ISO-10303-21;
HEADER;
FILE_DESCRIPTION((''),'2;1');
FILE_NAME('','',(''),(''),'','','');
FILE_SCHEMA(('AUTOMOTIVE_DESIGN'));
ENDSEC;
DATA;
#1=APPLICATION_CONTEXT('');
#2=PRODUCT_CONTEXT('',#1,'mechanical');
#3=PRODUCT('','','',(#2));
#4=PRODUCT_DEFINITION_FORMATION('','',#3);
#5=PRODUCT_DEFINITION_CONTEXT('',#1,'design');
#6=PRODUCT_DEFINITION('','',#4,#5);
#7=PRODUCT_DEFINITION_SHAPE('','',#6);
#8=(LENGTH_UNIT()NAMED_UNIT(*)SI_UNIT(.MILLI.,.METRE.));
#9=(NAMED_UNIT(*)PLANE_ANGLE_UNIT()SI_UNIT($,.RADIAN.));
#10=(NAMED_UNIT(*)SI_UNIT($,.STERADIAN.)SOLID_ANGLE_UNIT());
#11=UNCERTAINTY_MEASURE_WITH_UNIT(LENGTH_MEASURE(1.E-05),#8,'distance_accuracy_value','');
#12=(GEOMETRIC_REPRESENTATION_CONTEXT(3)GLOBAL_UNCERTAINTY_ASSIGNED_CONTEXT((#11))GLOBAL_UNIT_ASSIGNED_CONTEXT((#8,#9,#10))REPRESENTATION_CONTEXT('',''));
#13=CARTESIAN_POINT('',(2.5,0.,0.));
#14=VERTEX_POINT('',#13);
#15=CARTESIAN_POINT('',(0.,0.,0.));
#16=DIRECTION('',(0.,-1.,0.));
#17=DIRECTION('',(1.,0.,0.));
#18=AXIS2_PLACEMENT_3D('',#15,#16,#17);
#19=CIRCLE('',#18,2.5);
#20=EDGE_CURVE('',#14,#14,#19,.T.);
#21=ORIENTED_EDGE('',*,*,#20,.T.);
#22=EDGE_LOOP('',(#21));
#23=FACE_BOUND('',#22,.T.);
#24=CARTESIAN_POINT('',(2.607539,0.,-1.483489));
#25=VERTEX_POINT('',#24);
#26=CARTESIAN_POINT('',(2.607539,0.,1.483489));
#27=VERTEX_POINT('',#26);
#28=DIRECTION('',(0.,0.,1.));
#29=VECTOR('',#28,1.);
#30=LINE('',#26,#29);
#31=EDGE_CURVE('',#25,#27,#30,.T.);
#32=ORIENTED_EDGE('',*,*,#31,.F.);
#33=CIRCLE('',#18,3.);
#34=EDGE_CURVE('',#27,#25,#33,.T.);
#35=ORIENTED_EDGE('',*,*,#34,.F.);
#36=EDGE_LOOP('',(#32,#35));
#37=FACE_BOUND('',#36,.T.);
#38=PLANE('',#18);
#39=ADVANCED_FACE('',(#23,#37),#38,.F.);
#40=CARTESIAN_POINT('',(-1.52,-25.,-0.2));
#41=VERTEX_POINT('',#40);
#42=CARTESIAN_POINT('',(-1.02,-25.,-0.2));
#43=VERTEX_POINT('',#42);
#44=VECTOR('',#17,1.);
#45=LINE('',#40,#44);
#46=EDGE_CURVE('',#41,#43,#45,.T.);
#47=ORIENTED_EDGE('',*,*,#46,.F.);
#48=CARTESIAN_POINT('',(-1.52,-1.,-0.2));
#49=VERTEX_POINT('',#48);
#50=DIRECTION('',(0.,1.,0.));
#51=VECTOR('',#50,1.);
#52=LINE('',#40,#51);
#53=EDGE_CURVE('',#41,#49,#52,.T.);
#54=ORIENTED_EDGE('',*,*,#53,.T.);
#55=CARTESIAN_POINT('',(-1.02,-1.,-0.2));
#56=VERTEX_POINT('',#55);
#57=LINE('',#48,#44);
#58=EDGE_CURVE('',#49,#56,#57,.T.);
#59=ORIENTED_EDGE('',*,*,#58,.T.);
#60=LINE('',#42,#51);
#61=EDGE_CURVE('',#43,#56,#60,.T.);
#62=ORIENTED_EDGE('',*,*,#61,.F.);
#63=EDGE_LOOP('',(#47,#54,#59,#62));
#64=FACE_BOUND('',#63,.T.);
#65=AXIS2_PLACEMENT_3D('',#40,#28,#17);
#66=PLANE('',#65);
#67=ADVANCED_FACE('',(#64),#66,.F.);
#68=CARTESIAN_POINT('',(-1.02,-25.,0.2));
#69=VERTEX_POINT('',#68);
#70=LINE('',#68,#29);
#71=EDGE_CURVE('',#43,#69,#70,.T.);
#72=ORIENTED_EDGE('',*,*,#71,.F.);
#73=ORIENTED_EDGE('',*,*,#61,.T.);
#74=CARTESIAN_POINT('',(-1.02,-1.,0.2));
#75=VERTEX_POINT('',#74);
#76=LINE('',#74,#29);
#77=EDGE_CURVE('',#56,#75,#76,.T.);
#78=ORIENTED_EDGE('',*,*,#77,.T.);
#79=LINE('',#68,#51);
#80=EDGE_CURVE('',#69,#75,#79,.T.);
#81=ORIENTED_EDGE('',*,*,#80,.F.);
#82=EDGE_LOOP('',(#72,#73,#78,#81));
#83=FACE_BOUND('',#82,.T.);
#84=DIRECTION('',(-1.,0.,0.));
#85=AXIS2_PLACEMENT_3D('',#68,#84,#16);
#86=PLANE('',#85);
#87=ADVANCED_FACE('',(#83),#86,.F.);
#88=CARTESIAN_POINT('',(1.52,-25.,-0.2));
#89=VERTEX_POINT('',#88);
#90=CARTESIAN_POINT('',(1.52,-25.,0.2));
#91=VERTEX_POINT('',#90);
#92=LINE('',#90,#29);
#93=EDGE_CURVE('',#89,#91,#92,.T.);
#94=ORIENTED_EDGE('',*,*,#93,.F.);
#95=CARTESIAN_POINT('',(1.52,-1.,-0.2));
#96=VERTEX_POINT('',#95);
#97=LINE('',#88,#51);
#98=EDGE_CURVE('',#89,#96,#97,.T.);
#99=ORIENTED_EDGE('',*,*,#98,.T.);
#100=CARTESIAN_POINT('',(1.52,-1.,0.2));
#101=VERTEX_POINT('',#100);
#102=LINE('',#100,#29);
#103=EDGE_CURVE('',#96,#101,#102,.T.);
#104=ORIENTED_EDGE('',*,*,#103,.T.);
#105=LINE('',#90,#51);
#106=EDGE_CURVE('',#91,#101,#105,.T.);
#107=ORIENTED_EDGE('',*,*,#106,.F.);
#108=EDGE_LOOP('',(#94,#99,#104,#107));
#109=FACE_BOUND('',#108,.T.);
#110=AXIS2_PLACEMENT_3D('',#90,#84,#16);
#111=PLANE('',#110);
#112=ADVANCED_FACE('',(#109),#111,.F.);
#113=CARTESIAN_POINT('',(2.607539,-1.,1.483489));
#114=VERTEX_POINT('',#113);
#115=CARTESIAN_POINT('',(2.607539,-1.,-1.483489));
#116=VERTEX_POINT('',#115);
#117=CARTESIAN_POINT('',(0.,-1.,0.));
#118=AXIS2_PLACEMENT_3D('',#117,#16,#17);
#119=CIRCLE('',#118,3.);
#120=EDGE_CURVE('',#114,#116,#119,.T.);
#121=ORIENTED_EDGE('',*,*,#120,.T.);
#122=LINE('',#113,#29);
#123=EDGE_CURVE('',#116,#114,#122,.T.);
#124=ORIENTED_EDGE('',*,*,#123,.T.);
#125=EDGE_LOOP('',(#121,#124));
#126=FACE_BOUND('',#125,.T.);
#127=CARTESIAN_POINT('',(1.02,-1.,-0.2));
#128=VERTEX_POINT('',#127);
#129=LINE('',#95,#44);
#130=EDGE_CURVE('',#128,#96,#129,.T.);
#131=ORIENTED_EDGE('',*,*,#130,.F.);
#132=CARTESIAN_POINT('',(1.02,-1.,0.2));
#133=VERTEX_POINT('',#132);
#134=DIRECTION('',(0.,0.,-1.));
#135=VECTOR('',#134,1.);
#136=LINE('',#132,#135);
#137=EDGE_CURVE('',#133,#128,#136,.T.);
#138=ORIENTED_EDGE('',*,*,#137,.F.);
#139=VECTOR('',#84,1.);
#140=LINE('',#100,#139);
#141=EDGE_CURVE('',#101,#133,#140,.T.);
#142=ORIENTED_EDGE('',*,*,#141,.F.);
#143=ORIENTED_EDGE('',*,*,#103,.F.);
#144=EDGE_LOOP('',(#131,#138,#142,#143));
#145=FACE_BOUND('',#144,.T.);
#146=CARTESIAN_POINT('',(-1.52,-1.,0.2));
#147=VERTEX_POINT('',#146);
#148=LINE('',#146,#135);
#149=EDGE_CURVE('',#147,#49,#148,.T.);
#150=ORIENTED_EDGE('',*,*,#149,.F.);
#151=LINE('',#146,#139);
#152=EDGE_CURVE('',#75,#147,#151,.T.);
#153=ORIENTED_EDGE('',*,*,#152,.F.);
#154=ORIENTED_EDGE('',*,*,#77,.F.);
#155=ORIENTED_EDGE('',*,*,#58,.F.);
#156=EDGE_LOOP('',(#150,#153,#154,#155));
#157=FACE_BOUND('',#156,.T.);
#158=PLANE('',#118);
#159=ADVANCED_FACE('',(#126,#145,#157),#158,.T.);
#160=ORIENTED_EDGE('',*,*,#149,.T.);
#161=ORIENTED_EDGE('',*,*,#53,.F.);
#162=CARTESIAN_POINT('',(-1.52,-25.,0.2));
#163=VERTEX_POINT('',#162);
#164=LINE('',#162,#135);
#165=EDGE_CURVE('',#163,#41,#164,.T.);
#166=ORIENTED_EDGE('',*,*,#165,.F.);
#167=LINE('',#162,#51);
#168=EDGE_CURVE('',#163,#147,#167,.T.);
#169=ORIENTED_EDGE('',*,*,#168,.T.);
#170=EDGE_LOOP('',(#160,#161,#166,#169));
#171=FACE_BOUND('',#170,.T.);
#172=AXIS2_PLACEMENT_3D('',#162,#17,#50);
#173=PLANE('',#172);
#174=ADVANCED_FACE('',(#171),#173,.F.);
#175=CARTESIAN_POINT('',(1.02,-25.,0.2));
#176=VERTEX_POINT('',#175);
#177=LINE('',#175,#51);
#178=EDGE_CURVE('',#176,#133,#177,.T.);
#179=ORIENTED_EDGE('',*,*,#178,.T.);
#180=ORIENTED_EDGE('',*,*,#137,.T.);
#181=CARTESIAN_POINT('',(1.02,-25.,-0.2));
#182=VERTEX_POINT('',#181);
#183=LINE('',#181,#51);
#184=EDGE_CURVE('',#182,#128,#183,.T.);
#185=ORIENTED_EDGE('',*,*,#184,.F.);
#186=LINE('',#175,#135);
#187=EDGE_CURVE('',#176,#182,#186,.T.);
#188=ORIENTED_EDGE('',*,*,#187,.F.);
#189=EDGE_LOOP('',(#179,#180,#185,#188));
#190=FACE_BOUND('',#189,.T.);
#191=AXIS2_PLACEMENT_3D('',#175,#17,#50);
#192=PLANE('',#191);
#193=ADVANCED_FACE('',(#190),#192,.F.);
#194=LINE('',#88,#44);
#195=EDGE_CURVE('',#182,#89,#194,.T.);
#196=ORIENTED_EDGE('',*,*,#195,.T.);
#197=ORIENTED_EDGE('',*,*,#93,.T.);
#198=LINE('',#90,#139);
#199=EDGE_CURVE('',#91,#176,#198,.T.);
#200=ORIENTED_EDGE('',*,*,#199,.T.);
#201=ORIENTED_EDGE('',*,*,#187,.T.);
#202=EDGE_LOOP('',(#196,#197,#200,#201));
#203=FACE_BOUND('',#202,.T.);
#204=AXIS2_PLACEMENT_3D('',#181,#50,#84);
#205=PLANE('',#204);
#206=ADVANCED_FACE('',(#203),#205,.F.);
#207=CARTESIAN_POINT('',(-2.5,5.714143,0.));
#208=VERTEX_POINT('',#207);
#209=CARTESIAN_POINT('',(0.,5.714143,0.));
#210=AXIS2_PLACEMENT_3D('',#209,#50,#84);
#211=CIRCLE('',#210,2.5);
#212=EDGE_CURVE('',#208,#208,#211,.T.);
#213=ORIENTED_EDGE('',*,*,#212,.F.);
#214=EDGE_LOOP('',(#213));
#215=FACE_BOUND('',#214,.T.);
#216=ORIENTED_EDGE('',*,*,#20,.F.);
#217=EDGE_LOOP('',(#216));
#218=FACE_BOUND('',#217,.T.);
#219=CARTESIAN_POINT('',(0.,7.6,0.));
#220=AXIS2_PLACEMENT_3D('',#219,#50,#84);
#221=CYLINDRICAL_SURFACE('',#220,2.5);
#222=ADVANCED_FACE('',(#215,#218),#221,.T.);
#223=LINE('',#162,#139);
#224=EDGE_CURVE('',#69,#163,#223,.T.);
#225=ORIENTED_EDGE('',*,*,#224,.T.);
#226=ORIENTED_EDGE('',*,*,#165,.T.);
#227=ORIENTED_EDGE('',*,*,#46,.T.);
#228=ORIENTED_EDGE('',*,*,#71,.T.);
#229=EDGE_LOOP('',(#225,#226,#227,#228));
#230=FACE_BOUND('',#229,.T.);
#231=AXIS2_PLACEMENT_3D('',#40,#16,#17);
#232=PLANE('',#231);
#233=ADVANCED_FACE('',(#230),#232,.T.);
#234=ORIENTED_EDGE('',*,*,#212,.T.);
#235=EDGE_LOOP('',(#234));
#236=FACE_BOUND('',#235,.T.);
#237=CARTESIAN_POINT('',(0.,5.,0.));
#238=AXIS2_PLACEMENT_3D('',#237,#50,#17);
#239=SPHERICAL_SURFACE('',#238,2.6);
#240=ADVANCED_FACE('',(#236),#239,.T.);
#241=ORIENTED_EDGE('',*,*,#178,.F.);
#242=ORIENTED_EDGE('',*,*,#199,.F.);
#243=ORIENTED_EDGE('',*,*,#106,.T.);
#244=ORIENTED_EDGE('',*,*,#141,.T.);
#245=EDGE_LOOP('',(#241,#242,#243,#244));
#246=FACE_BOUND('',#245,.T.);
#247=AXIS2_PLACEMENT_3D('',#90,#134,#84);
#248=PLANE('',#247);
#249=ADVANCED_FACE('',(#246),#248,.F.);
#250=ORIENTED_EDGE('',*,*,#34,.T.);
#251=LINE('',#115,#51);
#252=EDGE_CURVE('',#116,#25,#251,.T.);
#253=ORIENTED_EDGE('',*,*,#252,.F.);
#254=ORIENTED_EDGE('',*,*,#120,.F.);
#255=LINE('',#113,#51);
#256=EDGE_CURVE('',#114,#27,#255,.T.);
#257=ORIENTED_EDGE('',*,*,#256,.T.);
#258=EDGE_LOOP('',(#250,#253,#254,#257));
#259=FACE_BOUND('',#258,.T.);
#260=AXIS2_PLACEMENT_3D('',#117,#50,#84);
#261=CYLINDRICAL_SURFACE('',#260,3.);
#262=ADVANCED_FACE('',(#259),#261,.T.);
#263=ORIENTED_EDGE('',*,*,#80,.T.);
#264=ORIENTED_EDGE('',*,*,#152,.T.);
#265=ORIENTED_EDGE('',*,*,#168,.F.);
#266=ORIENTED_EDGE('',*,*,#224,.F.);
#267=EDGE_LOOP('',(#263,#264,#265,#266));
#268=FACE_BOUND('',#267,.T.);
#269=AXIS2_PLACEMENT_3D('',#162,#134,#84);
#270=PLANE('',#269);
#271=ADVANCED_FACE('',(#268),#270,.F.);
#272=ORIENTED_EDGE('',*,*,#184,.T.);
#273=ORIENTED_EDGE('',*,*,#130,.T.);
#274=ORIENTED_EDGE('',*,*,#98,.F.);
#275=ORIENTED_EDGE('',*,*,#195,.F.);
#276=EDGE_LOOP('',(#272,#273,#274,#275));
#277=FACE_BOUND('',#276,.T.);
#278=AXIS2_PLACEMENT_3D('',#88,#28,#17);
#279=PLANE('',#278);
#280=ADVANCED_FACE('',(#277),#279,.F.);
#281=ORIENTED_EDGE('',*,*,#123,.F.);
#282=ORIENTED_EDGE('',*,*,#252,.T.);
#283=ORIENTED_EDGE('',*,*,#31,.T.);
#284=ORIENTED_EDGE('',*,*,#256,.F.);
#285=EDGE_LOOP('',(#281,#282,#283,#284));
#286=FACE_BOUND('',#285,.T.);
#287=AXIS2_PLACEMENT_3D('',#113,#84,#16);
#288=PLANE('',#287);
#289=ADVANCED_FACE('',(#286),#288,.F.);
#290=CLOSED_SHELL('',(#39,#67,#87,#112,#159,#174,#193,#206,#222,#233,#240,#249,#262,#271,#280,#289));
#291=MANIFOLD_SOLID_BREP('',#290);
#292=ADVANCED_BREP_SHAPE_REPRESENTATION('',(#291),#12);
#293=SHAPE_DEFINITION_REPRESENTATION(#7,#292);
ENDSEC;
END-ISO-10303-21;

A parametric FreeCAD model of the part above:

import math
import FreeCAD as App
import Part
import Sketcher
from FreeCAD import Vector
Q = App.Units.Quantity

doc = App.newDocument("Part")
body = doc.addObject("PartDesign::Body", "Body")

# Sketch on XY plane
sketch1 = body.newObject("Sketcher::SketchObject", "Sketch")
sketch1.AttachmentSupport = (doc.getObject("XY_Plane"), [""])
sketch1.MapMode = "FlatFace"
sketch1.addGeometry([
    Part.LineSegment(Vector(0, 0, 0), Vector(2.5, 0, 0)),
    Part.LineSegment(Vector(2.5, 0, 0), Vector(2.5, 5.7, 0)),
    Part.ArcOfCircle(Part.Circle(Vector(0, 5, 0), Vector(0, 0, 1), 2.6), math.radians(16), math.radians(90)),
    Part.LineSegment(Vector(0, 7.6, 0), Vector(0, 0, 0)),
], False)
sketch1.addConstraint([
    Sketcher.Constraint("Coincident", 0, 2, 1, 1),
    Sketcher.Constraint("Coincident", 1, 2, 2, 1),
    Sketcher.Constraint("Coincident", 2, 2, 3, 1),
    Sketcher.Constraint("Coincident", 3, 2, 0, 1),
    Sketcher.Constraint("Horizontal", 0),
    Sketcher.Constraint("Vertical", 1),
    Sketcher.Constraint("Vertical", 3),
    Sketcher.Constraint("Coincident", 3, 2, -1, 1),
    Sketcher.Constraint("PointOnObject", 2, 3, -2),
    Sketcher.Constraint("Radius", 2, Q("2.6 mm")),
    Sketcher.Constraint("DistanceX", 0, 1, 0, 2, Q("2.5 mm")),
    Sketcher.Constraint("DistanceY", 3, 2, 3, 1, Q("7.6 mm")),
])
revolution = body.newObject("PartDesign::Revolution", "Revolution")
revolution.Profile = sketch1
revolution.ReferenceAxis = (sketch1, ["V_Axis"])
revolution.Angle = 360

# Sketch on XZ plane
sketch2 = body.newObject("Sketcher::SketchObject", "Sketch001")
sketch2.AttachmentSupport = (doc.getObject("XZ_Plane"), [""])
sketch2.MapMode = "FlatFace"
sketch2.addGeometry([
    Part.LineSegment(Vector(2.6, -1.5, 0), Vector(2.6, 1.5, 0)),
    Part.ArcOfCircle(Part.Circle(Vector(0, 0, 0), Vector(0, 0, 1), 3), math.radians(30), math.radians(330)),
], False)
sketch2.addConstraint([
    Sketcher.Constraint("Coincident", 0, 1, 1, 2),
    Sketcher.Constraint("Coincident", 1, 1, 0, 2),
    Sketcher.Constraint("Vertical", 0),
    Sketcher.Constraint("Coincident", 1, 3, -1, 1),
    Sketcher.Constraint("Radius", 1, Q("3 mm")),
    Sketcher.Constraint("DistanceY", 0, 1, 0, 2, Q("2.966977 mm")),
])
pad1 = body.newObject("PartDesign::Pad", "Pad")
pad1.Profile = sketch2
pad1.Length = 1

# Sketch on XZ plane
sketch3 = body.newObject("Sketcher::SketchObject", "Sketch002")
sketch3.AttachmentSupport = (doc.getObject("XZ_Plane"), [""])
sketch3.MapMode = "FlatFace"
sketch3.AttachmentOffset = App.Placement(Vector(0, 0, 1), App.Rotation())
sketch3.addGeometry([
    Part.LineSegment(Vector(1.02, 0.2, 0), Vector(1.02, -0.2, 0)),  # 0
    Part.LineSegment(Vector(1.02, -0.2, 0), Vector(1.52, -0.2, 0)),  # 1
    Part.LineSegment(Vector(1.52, -0.2, 0), Vector(1.52, 0.2, 0)),  # 2
    Part.LineSegment(Vector(1.52, 0.2, 0), Vector(1.02, 0.2, 0)),  # 3
    Part.LineSegment(Vector(-1.52, 0.2, 0), Vector(-1.52, -0.2, 0)),  # 4
    Part.LineSegment(Vector(-1.52, -0.2, 0), Vector(-1.02, -0.2, 0)),  # 5
    Part.LineSegment(Vector(-1.02, -0.2, 0), Vector(-1.02, 0.2, 0)),  # 6
    Part.LineSegment(Vector(-1.02, 0.2, 0), Vector(-1.52, 0.2, 0)),  # 7
], False)
sketch3.addConstraint([
    Sketcher.Constraint("Coincident", 0, 2, 1, 1),
    Sketcher.Constraint("Coincident", 1, 2, 2, 1),
    Sketcher.Constraint("Coincident", 2, 2, 3, 1),
    Sketcher.Constraint("Coincident", 3, 2, 0, 1),
    Sketcher.Constraint("Coincident", 4, 2, 5, 1),
    Sketcher.Constraint("Coincident", 5, 2, 6, 1),
    Sketcher.Constraint("Coincident", 6, 2, 7, 1),
    Sketcher.Constraint("Coincident", 7, 2, 4, 1),
    Sketcher.Constraint("Vertical", 0),
    Sketcher.Constraint("Horizontal", 1),
    Sketcher.Constraint("Vertical", 2),
    Sketcher.Constraint("Horizontal", 3),
    Sketcher.Constraint("Vertical", 4),
    Sketcher.Constraint("Horizontal", 5),
    Sketcher.Constraint("Vertical", 6),
    Sketcher.Constraint("Horizontal", 7),
    Sketcher.Constraint("Symmetric", 2, 2, 4, 2, -1, 1),
    Sketcher.Constraint("Symmetric", 0, 2, 6, 2, -1, 1),
    Sketcher.Constraint("Horizontal", 1, 2, 4, 2),
    Sketcher.Constraint("DistanceX", 1, 1, 1, 2, Q("0.5 mm")),
    Sketcher.Constraint("DistanceY", 0, 2, 0, 1, Q("0.4 mm")),
    Sketcher.Constraint("DistanceX", -1, 1, 0, 2, Q("1.02 mm")),
])
pad2 = body.newObject("PartDesign::Pad", "Pad001")
pad2.Profile = sketch3
pad2.Length = 24

doc.recompute()
